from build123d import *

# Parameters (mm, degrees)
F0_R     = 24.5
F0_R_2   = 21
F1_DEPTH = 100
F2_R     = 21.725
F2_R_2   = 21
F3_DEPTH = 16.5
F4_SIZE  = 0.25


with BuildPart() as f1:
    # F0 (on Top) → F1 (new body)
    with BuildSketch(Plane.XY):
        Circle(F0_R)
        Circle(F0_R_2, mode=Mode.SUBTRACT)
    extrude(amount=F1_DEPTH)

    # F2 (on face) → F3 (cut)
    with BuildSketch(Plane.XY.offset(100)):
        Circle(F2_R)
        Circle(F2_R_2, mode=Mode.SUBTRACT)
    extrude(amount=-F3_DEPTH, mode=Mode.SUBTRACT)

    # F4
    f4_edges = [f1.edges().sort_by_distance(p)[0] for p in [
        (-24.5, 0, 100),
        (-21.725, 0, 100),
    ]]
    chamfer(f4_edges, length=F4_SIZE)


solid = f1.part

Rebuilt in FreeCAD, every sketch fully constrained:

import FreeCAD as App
import Part
import Sketcher

V = App.Vector
Q = App.Units.Quantity


def edges_at(feature, points):
    """Names of the edges that pass closest to the given points."""
    edges = feature.Shape.Edges
    near = lambda p: min(range(len(edges)), key=lambda i: edges[i].distToShape(Part.Vertex(*p))[0])
    return sorted({f"Edge{near(p) + 1}" for p in points})

doc = App.newDocument("Part")
params = doc.addObject("Spreadsheet::Sheet", "Params")
for row, (alias, value) in enumerate([
    ("sketch1_diameter", "49 mm"),
    ("sketch1_diameter2", "42 mm"),
    ("pad1_length", "100 mm"),
    ("sketch2_diameter", "42 mm"),
    ("sketch2_diameter2", "43.45 mm"),
    ("pocket1_length", "16.5 mm"),
    ("chamfer_size", "0.25 mm"),
], start=1):
    params.set(f"A{row}", alias)
    params.set(f"B{row}", "=" + value)
    params.setAlias(f"B{row}", alias)

body = doc.addObject("PartDesign::Body", "Body")

# Sketch on XY plane
sketch1 = body.newObject("Sketcher::SketchObject", "Sketch")
sketch1.AttachmentSupport = (doc.getObject("XY_Plane"), [""])
sketch1.MapMode = "FlatFace"
sketch1.addGeometry(Part.Circle(V(0, 0, 0), V(0, 0, 1), 24.5), False)
sketch1.addGeometry(Part.Circle(V(0, 0, 0), V(0, 0, 1), 21), False)
sketch1.addConstraint(Sketcher.Constraint("Coincident", 0, 3, -1, 1))
sketch1.addConstraint(Sketcher.Constraint("Coincident", 1, 3, -1, 1))
sketch1.addConstraint(Sketcher.Constraint("Diameter", 0, Q("49 mm")))
sketch1.addConstraint(Sketcher.Constraint("Diameter", 1, Q("42 mm")))
sketch1.setExpression("Constraints[2]", "Params.sketch1_diameter")
sketch1.setExpression("Constraints[3]", "Params.sketch1_diameter2")
pad1 = body.newObject("PartDesign::Pad", "Pad")
pad1.Profile = sketch1
pad1.setExpression("Length", "Params.pad1_length")

# Sketch on XY plane
sketch2 = body.newObject("Sketcher::SketchObject", "Sketch001")
sketch2.AttachmentSupport = (doc.getObject("XY_Plane"), [""])
sketch2.MapMode = "FlatFace"
sketch2.AttachmentOffset = App.Placement(V(0, 0, 100), App.Rotation())
sketch2.addGeometry(Part.Circle(V(0, 0, 0), V(0, 0, 1), 21.725), False)
sketch2.addGeometry(Part.Circle(V(0, 0, 0), V(0, 0, 1), 21), False)
sketch2.addConstraint(Sketcher.Constraint("Coincident", 0, 3, -1, 1))
sketch2.addConstraint(Sketcher.Constraint("Coincident", 1, 3, -1, 1))
sketch2.addConstraint(Sketcher.Constraint("Diameter", 1, Q("42 mm")))
sketch2.addConstraint(Sketcher.Constraint("Diameter", 0, Q("43.45 mm")))
sketch2.setExpression("Constraints[2]", "Params.sketch2_diameter")
sketch2.setExpression("Constraints[3]", "Params.sketch2_diameter2")
pocket1 = body.newObject("PartDesign::Pocket", "Pocket")
pocket1.Profile = sketch2
pocket1.setExpression("Length", "Params.pocket1_length")
doc.recompute()

chamfer = body.newObject("PartDesign::Chamfer", "Chamfer")
chamfer.Base = (pocket1, edges_at(pocket1, [(-24.5, 0, 100), (-21.725, 0, 100)]))
chamfer.setExpression("Size", "Params.chamfer_size")

doc.recompute()
